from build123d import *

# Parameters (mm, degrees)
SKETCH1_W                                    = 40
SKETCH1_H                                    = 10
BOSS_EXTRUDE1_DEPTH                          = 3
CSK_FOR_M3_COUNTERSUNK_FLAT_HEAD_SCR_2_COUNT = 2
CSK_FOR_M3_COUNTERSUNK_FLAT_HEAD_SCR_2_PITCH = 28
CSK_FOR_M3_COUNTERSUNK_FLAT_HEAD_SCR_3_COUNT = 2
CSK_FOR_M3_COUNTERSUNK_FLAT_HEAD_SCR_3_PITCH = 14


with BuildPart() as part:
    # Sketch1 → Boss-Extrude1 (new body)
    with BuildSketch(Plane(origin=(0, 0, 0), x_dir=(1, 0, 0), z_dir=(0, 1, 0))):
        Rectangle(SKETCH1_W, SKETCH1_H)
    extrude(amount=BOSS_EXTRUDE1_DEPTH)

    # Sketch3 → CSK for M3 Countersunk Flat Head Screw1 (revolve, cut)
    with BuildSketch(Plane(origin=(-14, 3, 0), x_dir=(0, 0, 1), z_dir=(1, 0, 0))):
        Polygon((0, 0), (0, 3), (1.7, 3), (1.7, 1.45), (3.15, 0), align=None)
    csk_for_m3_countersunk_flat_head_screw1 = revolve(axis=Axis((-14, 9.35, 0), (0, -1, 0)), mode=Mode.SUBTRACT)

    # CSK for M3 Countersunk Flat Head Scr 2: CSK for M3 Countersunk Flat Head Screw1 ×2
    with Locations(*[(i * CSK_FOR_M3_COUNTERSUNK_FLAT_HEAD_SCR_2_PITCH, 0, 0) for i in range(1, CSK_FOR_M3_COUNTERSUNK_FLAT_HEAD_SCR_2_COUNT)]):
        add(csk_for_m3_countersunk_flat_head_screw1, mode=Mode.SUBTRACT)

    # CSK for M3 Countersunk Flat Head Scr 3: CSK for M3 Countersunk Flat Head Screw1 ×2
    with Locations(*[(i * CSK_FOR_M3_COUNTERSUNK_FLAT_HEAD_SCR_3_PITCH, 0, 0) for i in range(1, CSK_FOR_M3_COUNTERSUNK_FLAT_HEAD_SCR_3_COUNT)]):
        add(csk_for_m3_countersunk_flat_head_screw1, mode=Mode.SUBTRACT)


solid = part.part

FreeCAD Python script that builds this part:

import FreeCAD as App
import Part
import Sketcher
Q = App.Units.Quantity

doc = App.newDocument("Part")
body = doc.addObject("PartDesign::Body", "Body")

sketch1 = body.newObject("Sketcher::SketchObject", "Sketch")
sketch1.AttachmentSupport = (doc.getObject("XZ_Plane"), [""])
sketch1.MapMode = "FlatFace"
sketch1.addGeometry([
    Part.LineSegment(App.Vector(-20, -5, 0), App.Vector(-20, 5, 0)),
    Part.LineSegment(App.Vector(-20, 5, 0), App.Vector(20, 5, 0)),
    Part.LineSegment(App.Vector(20, 5, 0), App.Vector(20, -5, 0)),
    Part.LineSegment(App.Vector(20, -5, 0), App.Vector(-20, -5, 0)),
], False)
sketch1.addConstraint([
    Sketcher.Constraint("Coincident", 0, 2, 1, 1),
    Sketcher.Constraint("Coincident", 1, 2, 2, 1),
    Sketcher.Constraint("Coincident", 2, 2, 3, 1),
    Sketcher.Constraint("Coincident", 3, 2, 0, 1),
    Sketcher.Constraint("Vertical", 0),
    Sketcher.Constraint("Horizontal", 1),
    Sketcher.Constraint("Vertical", 2),
    Sketcher.Constraint("Horizontal", 3),
    Sketcher.Constraint("Symmetric", 0, 2, 2, 2, -1, 1),
    Sketcher.Constraint("DistanceX", 1, 1, 1, 2, Q("40 mm")),
    Sketcher.Constraint("DistanceY", 0, 1, 0, 2, Q("10 mm")),
])
pad1 = body.newObject("PartDesign::Pad", "Pad")
pad1.Profile = sketch1
pad1.Length = 3
pad1.Reversed = True

sketch2 = body.newObject("Sketcher::SketchObject", "Sketch001")
sketch2.AttachmentSupport = (doc.getObject("YZ_Plane"), [""])
sketch2.MapMode = "FlatFace"
sketch2.AttachmentOffset = App.Placement(App.Vector(0, 0, -14), App.Rotation())
sketch2.addGeometry([
    Part.LineSegment(App.Vector(0, 0, 0), App.Vector(3, 0, 0)),
    Part.LineSegment(App.Vector(3, 0, 0), App.Vector(3, 3.1, 0)),
    Part.LineSegment(App.Vector(3, 3.1, 0), App.Vector(1.6, 1.7, 0)),
    Part.LineSegment(App.Vector(1.6, 1.7, 0), App.Vector(0, 1.7, 0)),
    Part.LineSegment(App.Vector(0, 1.7, 0), App.Vector(0, 0, 0)),
], False)
sketch2.addConstraint([
    Sketcher.Constraint("Coincident", 0, 2, 1, 1),
    Sketcher.Constraint("Coincident", 1, 2, 2, 1),
    Sketcher.Constraint("Coincident", 2, 2, 3, 1),
    Sketcher.Constraint("Coincident", 3, 2, 4, 1),
    Sketcher.Constraint("Coincident", 4, 2, 0, 1),
    Sketcher.Constraint("Horizontal", 0),
    Sketcher.Constraint("Vertical", 1),
    Sketcher.Constraint("Horizontal", 3),
    Sketcher.Constraint("Vertical", 4),
    Sketcher.Constraint("Coincident", 4, 2, -1, 1),
    Sketcher.Constraint("DistanceX", 0, 1, 0, 2, Q("3 mm")),
    Sketcher.Constraint("Angle", 2, Q("-135 deg")),
    Sketcher.Constraint("DistanceY", 4, 2, 4, 1, Q("1.7 mm")),
    Sketcher.Constraint("DistanceX", 3, 2, 3, 1, Q("1.55 mm")),
])
groove = body.newObject("PartDesign::Groove", "Groove")
groove.Profile = sketch2
groove.ReferenceAxis = (sketch2, ["H_Axis"])
groove.Angle = 360
doc.recompute()

linearpattern = body.newObject("PartDesign::LinearPattern", "LinearPattern")
linearpattern.Originals = [groove]
linearpattern.Direction = (doc.getObject("X_Axis"), [""])
linearpattern.Mode = "offset"
linearpattern.Offset = 28
linearpattern.Occurrences = 2
body.Tip = linearpattern
doc.recompute()

linearpattern2 = body.newObject("PartDesign::LinearPattern", "LinearPattern001")
linearpattern2.Originals = [groove]
linearpattern2.Direction = (doc.getObject("X_Axis"), [""])
linearpattern2.Mode = "offset"
linearpattern2.Offset = 14
linearpattern2.Occurrences = 2
body.Tip = linearpattern2

doc.recompute()
